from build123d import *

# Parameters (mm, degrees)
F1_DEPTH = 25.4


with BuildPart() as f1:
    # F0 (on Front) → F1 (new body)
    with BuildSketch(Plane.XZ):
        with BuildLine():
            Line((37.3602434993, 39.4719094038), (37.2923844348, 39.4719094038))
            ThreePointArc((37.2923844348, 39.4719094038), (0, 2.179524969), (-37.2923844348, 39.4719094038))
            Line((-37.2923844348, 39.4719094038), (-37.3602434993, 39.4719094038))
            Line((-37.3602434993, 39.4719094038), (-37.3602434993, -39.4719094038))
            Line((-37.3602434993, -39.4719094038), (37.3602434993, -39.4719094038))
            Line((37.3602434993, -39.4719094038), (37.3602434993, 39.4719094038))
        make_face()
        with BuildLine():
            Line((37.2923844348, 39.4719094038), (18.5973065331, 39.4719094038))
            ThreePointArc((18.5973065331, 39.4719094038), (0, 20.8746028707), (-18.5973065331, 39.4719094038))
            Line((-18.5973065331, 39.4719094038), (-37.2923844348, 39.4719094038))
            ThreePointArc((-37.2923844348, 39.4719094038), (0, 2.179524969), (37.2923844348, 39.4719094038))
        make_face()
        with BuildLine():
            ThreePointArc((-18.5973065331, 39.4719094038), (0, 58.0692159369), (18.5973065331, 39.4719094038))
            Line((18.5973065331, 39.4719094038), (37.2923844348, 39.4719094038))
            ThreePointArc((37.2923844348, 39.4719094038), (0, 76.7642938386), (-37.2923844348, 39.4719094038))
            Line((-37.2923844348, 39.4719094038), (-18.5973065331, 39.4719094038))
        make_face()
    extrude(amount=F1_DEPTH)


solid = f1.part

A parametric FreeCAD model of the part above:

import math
import FreeCAD as App
import Part
import Sketcher
from FreeCAD import Vector
Q = App.Units.Quantity

doc = App.newDocument("Part")
body = doc.addObject("PartDesign::Body", "Body")

sketch1 = body.newObject("Sketcher::SketchObject", "Sketch")
sketch1.AttachmentSupport = (doc.getObject("XZ_Plane"), [""])
sketch1.MapMode = "FlatFace"
sketch1.addGeometry([
    Part.LineSegment(Vector(37.36, 39.47, 0), Vector(37.29, 39.47, 0)),
    Part.ArcOfCircle(Part.Circle(Vector(0, 39.47, 0), Vector(0, 0, 1), 37.29), math.radians(0), math.radians(180)),
    Part.LineSegment(Vector(-37.29, 39.47, 0), Vector(-37.36, 39.47, 0)),
    Part.LineSegment(Vector(-37.36, 39.47, 0), Vector(-37.36, -39.47, 0)),
    Part.LineSegment(Vector(-37.36, -39.47, 0), Vector(37.36, -39.47, 0)),
    Part.LineSegment(Vector(37.36, -39.47, 0), Vector(37.36, 39.47, 0)),
    Part.Circle(Vector(0, 39.47, 0), Vector(0, 0, 1), 18.6),
], False)
sketch1.addConstraint([
    Sketcher.Constraint("Coincident", 0, 2, 1, 1),
    Sketcher.Constraint("Coincident", 1, 2, 2, 1),
    Sketcher.Constraint("Coincident", 2, 2, 3, 1),
    Sketcher.Constraint("Coincident", 3, 2, 4, 1),
    Sketcher.Constraint("Coincident", 4, 2, 5, 1),
    Sketcher.Constraint("Coincident", 5, 2, 0, 1),
    Sketcher.Constraint("Horizontal", 0),
    Sketcher.Constraint("Horizontal", 2),
    Sketcher.Constraint("Vertical", 3),
    Sketcher.Constraint("Horizontal", 4),
    Sketcher.Constraint("Vertical", 5),
    Sketcher.Constraint("Coincident", 6, 3, 1, 3),
    Sketcher.Constraint("Symmetric", 2, 2, 4, 2, -1, 1),
    Sketcher.Constraint("Symmetric", 0, 2, 1, 2, -2),
    Sketcher.Constraint("Horizontal", 6, 3, 0, 2),
    Sketcher.Constraint("Diameter", 6, 37.194613),
    Sketcher.Constraint("Radius", 1, 37.292384),
    Sketcher.Constraint("DistanceX", 0, 2, 0, 1, 0.067859),
    Sketcher.Constraint("DistanceY", 3, 2, 3, 1, 78.943819),
])
pad1 = body.newObject("PartDesign::Pad", "Pad")
pad1.Profile = sketch1
pad1.Length = Q("1 in")

doc.recompute()
